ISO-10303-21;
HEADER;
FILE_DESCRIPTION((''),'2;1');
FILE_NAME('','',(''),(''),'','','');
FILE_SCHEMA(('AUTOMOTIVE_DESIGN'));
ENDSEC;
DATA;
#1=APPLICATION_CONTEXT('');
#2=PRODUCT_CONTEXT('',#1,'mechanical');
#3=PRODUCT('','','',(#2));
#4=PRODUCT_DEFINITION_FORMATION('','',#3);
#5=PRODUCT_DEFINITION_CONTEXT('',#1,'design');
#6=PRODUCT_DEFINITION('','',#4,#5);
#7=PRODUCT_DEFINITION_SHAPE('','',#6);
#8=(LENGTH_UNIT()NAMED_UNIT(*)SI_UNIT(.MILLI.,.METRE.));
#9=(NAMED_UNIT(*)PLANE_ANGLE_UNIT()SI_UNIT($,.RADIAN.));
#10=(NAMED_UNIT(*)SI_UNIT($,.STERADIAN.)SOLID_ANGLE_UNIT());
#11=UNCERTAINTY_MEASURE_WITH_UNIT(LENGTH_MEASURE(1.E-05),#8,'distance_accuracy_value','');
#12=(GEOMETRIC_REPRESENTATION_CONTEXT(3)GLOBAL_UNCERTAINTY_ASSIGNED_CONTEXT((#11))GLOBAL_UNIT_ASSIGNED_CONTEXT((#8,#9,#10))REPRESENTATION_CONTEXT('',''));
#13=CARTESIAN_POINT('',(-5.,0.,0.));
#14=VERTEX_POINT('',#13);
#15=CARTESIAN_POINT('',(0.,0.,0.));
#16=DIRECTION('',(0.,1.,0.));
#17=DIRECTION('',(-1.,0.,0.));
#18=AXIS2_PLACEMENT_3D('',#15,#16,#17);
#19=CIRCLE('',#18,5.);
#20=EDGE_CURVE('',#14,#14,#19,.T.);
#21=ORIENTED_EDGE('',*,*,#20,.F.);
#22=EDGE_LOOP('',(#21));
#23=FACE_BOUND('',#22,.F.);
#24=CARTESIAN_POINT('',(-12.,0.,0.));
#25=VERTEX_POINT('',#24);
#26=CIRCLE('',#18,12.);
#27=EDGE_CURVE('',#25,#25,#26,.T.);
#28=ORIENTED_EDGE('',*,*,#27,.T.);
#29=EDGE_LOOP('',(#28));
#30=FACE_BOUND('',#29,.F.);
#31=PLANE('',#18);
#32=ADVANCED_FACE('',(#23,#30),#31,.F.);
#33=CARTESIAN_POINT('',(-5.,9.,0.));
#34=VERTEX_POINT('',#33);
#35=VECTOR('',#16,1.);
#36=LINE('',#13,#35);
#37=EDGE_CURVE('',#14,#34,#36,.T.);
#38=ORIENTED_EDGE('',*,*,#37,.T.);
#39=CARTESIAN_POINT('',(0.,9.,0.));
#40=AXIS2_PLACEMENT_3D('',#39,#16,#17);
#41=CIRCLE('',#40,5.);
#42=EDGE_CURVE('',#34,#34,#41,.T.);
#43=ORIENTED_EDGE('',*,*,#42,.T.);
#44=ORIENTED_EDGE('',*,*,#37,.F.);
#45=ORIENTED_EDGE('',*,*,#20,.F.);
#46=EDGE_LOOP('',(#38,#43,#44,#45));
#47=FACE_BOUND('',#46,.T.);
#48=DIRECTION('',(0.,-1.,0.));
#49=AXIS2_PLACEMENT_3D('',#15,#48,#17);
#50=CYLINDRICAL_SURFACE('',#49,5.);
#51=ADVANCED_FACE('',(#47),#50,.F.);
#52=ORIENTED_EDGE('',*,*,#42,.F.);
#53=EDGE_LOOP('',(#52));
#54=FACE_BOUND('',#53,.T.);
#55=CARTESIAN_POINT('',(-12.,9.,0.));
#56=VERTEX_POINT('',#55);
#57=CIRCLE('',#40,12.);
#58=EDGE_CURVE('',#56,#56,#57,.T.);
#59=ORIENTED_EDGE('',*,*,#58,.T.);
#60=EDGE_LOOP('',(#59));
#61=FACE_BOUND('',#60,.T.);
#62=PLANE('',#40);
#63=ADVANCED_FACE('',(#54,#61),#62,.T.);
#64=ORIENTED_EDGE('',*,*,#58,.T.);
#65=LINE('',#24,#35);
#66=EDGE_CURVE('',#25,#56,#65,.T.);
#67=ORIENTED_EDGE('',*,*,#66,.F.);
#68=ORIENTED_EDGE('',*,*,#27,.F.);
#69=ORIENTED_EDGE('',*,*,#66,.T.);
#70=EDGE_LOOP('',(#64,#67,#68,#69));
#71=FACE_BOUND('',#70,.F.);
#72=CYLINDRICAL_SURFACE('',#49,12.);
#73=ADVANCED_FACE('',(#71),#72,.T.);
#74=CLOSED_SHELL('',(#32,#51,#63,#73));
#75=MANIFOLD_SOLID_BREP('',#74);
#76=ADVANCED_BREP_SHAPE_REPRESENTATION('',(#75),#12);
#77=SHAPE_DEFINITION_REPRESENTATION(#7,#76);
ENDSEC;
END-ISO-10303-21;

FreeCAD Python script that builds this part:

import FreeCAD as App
import Part
import Sketcher

doc = App.newDocument("Part")
body = doc.addObject("PartDesign::Body", "Body")

sketch1 = doc.addObject("Sketcher::SketchObject", "Sketch")
body.addObject(sketch1)
sketch1.AttachmentSupport = (doc.XZ_Plane, [""])
sketch1.MapMode = "FlatFace"
sketch1.addGeometry([
    Part.Circle(App.Vector(0, 0, 0), App.Vector(0, 0, 1), 12),
    Part.Circle(App.Vector(0, 0, 0), App.Vector(0, 0, 1), 5),
], False)
sketch1.addConstraint([
    Sketcher.Constraint("Coincident", 0, 3, -1, 1),
    Sketcher.Constraint("Coincident", 1, 3, -1, 1),
    Sketcher.Constraint("Diameter", 0, 24.0),
    Sketcher.Constraint("Diameter", 1, 10.0),
])
pad1 = doc.addObject("PartDesign::Pad", "Pad")
body.addObject(pad1)
pad1.Profile = sketch1
pad1.Length = 9
pad1.Reversed = True

doc.recompute()
